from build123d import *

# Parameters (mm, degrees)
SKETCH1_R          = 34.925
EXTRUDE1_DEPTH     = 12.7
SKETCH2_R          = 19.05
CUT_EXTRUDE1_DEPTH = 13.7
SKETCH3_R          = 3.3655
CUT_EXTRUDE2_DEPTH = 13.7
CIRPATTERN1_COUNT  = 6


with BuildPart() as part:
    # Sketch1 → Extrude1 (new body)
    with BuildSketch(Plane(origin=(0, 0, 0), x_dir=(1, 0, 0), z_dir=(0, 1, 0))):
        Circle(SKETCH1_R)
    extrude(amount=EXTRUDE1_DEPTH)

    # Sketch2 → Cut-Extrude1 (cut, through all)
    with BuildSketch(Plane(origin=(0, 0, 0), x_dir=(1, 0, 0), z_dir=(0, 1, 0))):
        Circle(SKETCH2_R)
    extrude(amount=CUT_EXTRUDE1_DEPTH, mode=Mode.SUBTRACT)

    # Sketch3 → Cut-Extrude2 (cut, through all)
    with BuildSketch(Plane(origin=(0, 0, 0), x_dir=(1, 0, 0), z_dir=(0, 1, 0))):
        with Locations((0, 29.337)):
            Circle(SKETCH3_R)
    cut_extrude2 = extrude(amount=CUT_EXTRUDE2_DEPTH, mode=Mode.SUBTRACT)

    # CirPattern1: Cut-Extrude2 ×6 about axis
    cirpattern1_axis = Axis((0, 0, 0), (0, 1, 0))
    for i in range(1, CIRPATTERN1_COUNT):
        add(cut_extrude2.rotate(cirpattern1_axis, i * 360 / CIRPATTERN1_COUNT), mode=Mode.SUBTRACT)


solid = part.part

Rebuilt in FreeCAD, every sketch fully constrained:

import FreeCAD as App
import Part
import Sketcher

V = App.Vector
Q = App.Units.Quantity

doc = App.newDocument("Part")
body = doc.addObject("PartDesign::Body", "Body")

sketch1 = doc.addObject("Sketcher::SketchObject", "Sketch")
body.addObject(sketch1)
sketch1.AttachmentSupport = (doc.XZ_Plane, [""])
sketch1.MapMode = "FlatFace"
sketch1.addGeometry(Part.Circle(V(0, 0, 0), V(0, 0, 1), 35), False)
sketch1.addConstraint(Sketcher.Constraint("Coincident", 0, 3, -1, 1))
sketch1.addConstraint(Sketcher.Constraint("Diameter", 0, Q("2.75 in")))
pad1 = doc.addObject("PartDesign::Pad", "Pad")
body.addObject(pad1)
pad1.Profile = sketch1
pad1.Length = Q("0.5 in")
pad1.Reversed = True

sketch2 = doc.addObject("Sketcher::SketchObject", "Sketch001")
body.addObject(sketch2)
sketch2.AttachmentSupport = (doc.XZ_Plane, [""])
sketch2.MapMode = "FlatFace"
sketch2.addGeometry(Part.Circle(V(0, 0, 0), V(0, 0, 1), 19), False)
sketch2.addConstraint(Sketcher.Constraint("Coincident", 0, 3, -1, 1))
sketch2.addConstraint(Sketcher.Constraint("Diameter", 0, Q("1.5 in")))
pocket1 = doc.addObject("PartDesign::Pocket", "Pocket")
body.addObject(pocket1)
pocket1.Profile = sketch2
pocket1.Type = "ThroughAll"

sketch3 = doc.addObject("Sketcher::SketchObject", "Sketch002")
body.addObject(sketch3)
sketch3.AttachmentSupport = (doc.XZ_Plane, [""])
sketch3.MapMode = "FlatFace"
sketch3.addGeometry(Part.Circle(V(0, -29.3, 0), V(0, 0, 1), 3.4), False)
sketch3.addConstraint(Sketcher.Constraint("PointOnObject", 0, 3, -2))
sketch3.addConstraint(Sketcher.Constraint("Diameter", 0, Q("0.265 in")))
sketch3.addConstraint(Sketcher.Constraint("DistanceY", 0, 3, -1, 1, Q("1.155 in")))
pocket2 = doc.addObject("PartDesign::Pocket", "Pocket001")
body.addObject(pocket2)
pocket2.Profile = sketch3
pocket2.Type = "ThroughAll"
doc.recompute()

polarpattern = doc.addObject("PartDesign::PolarPattern", "PolarPattern")
body.addObject(polarpattern)
polarpattern.Originals = [pocket2]
polarpattern.Axis = (doc.Y_Axis, [""])
polarpattern.Angle = 360
polarpattern.Occurrences = 6
body.Tip = polarpattern

doc.recompute()
